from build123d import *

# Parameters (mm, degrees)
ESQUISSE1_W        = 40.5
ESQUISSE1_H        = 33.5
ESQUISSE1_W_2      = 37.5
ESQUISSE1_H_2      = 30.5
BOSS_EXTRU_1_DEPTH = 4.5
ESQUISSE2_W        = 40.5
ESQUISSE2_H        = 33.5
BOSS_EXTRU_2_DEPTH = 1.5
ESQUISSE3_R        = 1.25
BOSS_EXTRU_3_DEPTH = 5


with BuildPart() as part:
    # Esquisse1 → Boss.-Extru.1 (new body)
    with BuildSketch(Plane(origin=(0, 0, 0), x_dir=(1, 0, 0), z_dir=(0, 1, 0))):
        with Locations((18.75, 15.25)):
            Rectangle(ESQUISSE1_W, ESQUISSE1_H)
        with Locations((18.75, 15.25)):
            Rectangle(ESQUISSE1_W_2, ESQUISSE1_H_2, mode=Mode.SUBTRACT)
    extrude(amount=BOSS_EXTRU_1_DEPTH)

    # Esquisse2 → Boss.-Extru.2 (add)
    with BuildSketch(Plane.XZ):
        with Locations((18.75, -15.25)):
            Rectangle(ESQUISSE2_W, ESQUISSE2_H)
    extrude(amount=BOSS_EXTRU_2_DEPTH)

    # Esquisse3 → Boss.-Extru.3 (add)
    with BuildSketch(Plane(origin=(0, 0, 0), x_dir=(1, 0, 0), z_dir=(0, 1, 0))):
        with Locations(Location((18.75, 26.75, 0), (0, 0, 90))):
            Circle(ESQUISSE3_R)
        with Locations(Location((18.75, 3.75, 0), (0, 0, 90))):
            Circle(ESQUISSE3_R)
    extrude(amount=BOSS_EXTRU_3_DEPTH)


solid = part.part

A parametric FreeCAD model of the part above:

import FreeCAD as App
import Part
import Sketcher


def add_polygon(sketch, points):
    """Adds a closed chain of lines whose ends are joined by coincident constraints."""
    first, n = sketch.GeometryCount, len(points)
    for a, b in zip(points, points[1:] + points[:1]):
        sketch.addGeometry(Part.LineSegment(App.Vector(*a, 0), App.Vector(*b, 0)), False)
    for i in range(n):
        sketch.addConstraint(Sketcher.Constraint("Coincident", first + i, 2, first + (i + 1) % n, 1))

doc = App.newDocument("Part")
body = doc.addObject("PartDesign::Body", "Body")

# Sketch on XZ plane
sketch1 = doc.addObject("Sketcher::SketchObject", "Sketch")
body.addObject(sketch1)
sketch1.AttachmentSupport = (doc.XZ_Plane, [""])
sketch1.MapMode = "FlatFace"
add_polygon(sketch1, [(-2, -32), (-2, 2), (39, 2), (39, -32)])  # lines 0-3
add_polygon(sketch1, [(38, 0), (0, 0), (0, -30), (38, -30)])  # lines 4-7
sketch1.addConstraint([
    Sketcher.Constraint("Vertical", 0),
    Sketcher.Constraint("Horizontal", 1),
    Sketcher.Constraint("Vertical", 2),
    Sketcher.Constraint("Horizontal", 3),
    Sketcher.Constraint("Horizontal", 4),
    Sketcher.Constraint("Vertical", 5),
    Sketcher.Constraint("Horizontal", 6),
    Sketcher.Constraint("Vertical", 7),
    Sketcher.Constraint("Coincident", 4, 2, -1, 1),
    Sketcher.Constraint("DistanceX", 1, 1, 1, 2, 40.5),
    Sketcher.Constraint("DistanceX", 4, 2, 4, 1, 37.5),
    Sketcher.Constraint("DistanceY", 0, 1, 0, 2, 33.5),
    Sketcher.Constraint("DistanceY", 5, 2, 5, 1, 30.5),
    Sketcher.Constraint("DistanceX", -1, 1, 1, 2, 39.0),
    Sketcher.Constraint("DistanceY", 2, 2, -1, 1, 32.0),
])
pad1 = doc.addObject("PartDesign::Pad", "Pad")
body.addObject(pad1)
pad1.Profile = sketch1
pad1.Length = 4.5
pad1.Reversed = True

# Sketch on XZ plane
sketch2 = doc.addObject("Sketcher::SketchObject", "Sketch001")
body.addObject(sketch2)
sketch2.AttachmentSupport = (doc.XZ_Plane, [""])
sketch2.MapMode = "FlatFace"
add_polygon(sketch2, [(-2, 2), (-2, -32), (39, -32), (39, 2)])  # lines 0-3
sketch2.addConstraint([
    Sketcher.Constraint("Vertical", 0),
    Sketcher.Constraint("Horizontal", 1),
    Sketcher.Constraint("Vertical", 2),
    Sketcher.Constraint("Horizontal", 3),
    Sketcher.Constraint("DistanceX", 1, 1, 1, 2, 40.5),
    Sketcher.Constraint("DistanceY", 0, 2, 0, 1, 33.5),
    Sketcher.Constraint("DistanceY", 0, 2, -1, 1, 32.0),
    Sketcher.Constraint("DistanceX", -1, 1, 1, 2, 39.0),
])
pad2 = doc.addObject("PartDesign::Pad", "Pad001")
body.addObject(pad2)
pad2.Profile = sketch2
pad2.Length = 1.5

# Sketch on XZ plane
sketch3 = doc.addObject("Sketcher::SketchObject", "Sketch002")
body.addObject(sketch3)
sketch3.AttachmentSupport = (doc.XZ_Plane, [""])
sketch3.MapMode = "FlatFace"
sketch3.addGeometry([
    Part.Circle(App.Vector(18.8, -26.8, 0), App.Vector(0, 0, 1), 1.2),
    Part.Circle(App.Vector(18.8, -3.8, 0), App.Vector(0, 0, 1), 1.2),
], False)
sketch3.addConstraint([
    Sketcher.Constraint("Equal", 0, 1),
    Sketcher.Constraint("Vertical", 0, 3, 1, 3),
    Sketcher.Constraint("Diameter", 0, 2.5),
    Sketcher.Constraint("DistanceY", 0, 3, 1, 3, 23.0),
    Sketcher.Constraint("DistanceX", -1, 1, 0, 3, 18.75),
    Sketcher.Constraint("DistanceY", 0, 3, -1, 1, 26.75),
])
pad3 = doc.addObject("PartDesign::Pad", "Pad002")
body.addObject(pad3)
pad3.Profile = sketch3
pad3.Length = 5
pad3.Reversed = True

doc.recompute()
